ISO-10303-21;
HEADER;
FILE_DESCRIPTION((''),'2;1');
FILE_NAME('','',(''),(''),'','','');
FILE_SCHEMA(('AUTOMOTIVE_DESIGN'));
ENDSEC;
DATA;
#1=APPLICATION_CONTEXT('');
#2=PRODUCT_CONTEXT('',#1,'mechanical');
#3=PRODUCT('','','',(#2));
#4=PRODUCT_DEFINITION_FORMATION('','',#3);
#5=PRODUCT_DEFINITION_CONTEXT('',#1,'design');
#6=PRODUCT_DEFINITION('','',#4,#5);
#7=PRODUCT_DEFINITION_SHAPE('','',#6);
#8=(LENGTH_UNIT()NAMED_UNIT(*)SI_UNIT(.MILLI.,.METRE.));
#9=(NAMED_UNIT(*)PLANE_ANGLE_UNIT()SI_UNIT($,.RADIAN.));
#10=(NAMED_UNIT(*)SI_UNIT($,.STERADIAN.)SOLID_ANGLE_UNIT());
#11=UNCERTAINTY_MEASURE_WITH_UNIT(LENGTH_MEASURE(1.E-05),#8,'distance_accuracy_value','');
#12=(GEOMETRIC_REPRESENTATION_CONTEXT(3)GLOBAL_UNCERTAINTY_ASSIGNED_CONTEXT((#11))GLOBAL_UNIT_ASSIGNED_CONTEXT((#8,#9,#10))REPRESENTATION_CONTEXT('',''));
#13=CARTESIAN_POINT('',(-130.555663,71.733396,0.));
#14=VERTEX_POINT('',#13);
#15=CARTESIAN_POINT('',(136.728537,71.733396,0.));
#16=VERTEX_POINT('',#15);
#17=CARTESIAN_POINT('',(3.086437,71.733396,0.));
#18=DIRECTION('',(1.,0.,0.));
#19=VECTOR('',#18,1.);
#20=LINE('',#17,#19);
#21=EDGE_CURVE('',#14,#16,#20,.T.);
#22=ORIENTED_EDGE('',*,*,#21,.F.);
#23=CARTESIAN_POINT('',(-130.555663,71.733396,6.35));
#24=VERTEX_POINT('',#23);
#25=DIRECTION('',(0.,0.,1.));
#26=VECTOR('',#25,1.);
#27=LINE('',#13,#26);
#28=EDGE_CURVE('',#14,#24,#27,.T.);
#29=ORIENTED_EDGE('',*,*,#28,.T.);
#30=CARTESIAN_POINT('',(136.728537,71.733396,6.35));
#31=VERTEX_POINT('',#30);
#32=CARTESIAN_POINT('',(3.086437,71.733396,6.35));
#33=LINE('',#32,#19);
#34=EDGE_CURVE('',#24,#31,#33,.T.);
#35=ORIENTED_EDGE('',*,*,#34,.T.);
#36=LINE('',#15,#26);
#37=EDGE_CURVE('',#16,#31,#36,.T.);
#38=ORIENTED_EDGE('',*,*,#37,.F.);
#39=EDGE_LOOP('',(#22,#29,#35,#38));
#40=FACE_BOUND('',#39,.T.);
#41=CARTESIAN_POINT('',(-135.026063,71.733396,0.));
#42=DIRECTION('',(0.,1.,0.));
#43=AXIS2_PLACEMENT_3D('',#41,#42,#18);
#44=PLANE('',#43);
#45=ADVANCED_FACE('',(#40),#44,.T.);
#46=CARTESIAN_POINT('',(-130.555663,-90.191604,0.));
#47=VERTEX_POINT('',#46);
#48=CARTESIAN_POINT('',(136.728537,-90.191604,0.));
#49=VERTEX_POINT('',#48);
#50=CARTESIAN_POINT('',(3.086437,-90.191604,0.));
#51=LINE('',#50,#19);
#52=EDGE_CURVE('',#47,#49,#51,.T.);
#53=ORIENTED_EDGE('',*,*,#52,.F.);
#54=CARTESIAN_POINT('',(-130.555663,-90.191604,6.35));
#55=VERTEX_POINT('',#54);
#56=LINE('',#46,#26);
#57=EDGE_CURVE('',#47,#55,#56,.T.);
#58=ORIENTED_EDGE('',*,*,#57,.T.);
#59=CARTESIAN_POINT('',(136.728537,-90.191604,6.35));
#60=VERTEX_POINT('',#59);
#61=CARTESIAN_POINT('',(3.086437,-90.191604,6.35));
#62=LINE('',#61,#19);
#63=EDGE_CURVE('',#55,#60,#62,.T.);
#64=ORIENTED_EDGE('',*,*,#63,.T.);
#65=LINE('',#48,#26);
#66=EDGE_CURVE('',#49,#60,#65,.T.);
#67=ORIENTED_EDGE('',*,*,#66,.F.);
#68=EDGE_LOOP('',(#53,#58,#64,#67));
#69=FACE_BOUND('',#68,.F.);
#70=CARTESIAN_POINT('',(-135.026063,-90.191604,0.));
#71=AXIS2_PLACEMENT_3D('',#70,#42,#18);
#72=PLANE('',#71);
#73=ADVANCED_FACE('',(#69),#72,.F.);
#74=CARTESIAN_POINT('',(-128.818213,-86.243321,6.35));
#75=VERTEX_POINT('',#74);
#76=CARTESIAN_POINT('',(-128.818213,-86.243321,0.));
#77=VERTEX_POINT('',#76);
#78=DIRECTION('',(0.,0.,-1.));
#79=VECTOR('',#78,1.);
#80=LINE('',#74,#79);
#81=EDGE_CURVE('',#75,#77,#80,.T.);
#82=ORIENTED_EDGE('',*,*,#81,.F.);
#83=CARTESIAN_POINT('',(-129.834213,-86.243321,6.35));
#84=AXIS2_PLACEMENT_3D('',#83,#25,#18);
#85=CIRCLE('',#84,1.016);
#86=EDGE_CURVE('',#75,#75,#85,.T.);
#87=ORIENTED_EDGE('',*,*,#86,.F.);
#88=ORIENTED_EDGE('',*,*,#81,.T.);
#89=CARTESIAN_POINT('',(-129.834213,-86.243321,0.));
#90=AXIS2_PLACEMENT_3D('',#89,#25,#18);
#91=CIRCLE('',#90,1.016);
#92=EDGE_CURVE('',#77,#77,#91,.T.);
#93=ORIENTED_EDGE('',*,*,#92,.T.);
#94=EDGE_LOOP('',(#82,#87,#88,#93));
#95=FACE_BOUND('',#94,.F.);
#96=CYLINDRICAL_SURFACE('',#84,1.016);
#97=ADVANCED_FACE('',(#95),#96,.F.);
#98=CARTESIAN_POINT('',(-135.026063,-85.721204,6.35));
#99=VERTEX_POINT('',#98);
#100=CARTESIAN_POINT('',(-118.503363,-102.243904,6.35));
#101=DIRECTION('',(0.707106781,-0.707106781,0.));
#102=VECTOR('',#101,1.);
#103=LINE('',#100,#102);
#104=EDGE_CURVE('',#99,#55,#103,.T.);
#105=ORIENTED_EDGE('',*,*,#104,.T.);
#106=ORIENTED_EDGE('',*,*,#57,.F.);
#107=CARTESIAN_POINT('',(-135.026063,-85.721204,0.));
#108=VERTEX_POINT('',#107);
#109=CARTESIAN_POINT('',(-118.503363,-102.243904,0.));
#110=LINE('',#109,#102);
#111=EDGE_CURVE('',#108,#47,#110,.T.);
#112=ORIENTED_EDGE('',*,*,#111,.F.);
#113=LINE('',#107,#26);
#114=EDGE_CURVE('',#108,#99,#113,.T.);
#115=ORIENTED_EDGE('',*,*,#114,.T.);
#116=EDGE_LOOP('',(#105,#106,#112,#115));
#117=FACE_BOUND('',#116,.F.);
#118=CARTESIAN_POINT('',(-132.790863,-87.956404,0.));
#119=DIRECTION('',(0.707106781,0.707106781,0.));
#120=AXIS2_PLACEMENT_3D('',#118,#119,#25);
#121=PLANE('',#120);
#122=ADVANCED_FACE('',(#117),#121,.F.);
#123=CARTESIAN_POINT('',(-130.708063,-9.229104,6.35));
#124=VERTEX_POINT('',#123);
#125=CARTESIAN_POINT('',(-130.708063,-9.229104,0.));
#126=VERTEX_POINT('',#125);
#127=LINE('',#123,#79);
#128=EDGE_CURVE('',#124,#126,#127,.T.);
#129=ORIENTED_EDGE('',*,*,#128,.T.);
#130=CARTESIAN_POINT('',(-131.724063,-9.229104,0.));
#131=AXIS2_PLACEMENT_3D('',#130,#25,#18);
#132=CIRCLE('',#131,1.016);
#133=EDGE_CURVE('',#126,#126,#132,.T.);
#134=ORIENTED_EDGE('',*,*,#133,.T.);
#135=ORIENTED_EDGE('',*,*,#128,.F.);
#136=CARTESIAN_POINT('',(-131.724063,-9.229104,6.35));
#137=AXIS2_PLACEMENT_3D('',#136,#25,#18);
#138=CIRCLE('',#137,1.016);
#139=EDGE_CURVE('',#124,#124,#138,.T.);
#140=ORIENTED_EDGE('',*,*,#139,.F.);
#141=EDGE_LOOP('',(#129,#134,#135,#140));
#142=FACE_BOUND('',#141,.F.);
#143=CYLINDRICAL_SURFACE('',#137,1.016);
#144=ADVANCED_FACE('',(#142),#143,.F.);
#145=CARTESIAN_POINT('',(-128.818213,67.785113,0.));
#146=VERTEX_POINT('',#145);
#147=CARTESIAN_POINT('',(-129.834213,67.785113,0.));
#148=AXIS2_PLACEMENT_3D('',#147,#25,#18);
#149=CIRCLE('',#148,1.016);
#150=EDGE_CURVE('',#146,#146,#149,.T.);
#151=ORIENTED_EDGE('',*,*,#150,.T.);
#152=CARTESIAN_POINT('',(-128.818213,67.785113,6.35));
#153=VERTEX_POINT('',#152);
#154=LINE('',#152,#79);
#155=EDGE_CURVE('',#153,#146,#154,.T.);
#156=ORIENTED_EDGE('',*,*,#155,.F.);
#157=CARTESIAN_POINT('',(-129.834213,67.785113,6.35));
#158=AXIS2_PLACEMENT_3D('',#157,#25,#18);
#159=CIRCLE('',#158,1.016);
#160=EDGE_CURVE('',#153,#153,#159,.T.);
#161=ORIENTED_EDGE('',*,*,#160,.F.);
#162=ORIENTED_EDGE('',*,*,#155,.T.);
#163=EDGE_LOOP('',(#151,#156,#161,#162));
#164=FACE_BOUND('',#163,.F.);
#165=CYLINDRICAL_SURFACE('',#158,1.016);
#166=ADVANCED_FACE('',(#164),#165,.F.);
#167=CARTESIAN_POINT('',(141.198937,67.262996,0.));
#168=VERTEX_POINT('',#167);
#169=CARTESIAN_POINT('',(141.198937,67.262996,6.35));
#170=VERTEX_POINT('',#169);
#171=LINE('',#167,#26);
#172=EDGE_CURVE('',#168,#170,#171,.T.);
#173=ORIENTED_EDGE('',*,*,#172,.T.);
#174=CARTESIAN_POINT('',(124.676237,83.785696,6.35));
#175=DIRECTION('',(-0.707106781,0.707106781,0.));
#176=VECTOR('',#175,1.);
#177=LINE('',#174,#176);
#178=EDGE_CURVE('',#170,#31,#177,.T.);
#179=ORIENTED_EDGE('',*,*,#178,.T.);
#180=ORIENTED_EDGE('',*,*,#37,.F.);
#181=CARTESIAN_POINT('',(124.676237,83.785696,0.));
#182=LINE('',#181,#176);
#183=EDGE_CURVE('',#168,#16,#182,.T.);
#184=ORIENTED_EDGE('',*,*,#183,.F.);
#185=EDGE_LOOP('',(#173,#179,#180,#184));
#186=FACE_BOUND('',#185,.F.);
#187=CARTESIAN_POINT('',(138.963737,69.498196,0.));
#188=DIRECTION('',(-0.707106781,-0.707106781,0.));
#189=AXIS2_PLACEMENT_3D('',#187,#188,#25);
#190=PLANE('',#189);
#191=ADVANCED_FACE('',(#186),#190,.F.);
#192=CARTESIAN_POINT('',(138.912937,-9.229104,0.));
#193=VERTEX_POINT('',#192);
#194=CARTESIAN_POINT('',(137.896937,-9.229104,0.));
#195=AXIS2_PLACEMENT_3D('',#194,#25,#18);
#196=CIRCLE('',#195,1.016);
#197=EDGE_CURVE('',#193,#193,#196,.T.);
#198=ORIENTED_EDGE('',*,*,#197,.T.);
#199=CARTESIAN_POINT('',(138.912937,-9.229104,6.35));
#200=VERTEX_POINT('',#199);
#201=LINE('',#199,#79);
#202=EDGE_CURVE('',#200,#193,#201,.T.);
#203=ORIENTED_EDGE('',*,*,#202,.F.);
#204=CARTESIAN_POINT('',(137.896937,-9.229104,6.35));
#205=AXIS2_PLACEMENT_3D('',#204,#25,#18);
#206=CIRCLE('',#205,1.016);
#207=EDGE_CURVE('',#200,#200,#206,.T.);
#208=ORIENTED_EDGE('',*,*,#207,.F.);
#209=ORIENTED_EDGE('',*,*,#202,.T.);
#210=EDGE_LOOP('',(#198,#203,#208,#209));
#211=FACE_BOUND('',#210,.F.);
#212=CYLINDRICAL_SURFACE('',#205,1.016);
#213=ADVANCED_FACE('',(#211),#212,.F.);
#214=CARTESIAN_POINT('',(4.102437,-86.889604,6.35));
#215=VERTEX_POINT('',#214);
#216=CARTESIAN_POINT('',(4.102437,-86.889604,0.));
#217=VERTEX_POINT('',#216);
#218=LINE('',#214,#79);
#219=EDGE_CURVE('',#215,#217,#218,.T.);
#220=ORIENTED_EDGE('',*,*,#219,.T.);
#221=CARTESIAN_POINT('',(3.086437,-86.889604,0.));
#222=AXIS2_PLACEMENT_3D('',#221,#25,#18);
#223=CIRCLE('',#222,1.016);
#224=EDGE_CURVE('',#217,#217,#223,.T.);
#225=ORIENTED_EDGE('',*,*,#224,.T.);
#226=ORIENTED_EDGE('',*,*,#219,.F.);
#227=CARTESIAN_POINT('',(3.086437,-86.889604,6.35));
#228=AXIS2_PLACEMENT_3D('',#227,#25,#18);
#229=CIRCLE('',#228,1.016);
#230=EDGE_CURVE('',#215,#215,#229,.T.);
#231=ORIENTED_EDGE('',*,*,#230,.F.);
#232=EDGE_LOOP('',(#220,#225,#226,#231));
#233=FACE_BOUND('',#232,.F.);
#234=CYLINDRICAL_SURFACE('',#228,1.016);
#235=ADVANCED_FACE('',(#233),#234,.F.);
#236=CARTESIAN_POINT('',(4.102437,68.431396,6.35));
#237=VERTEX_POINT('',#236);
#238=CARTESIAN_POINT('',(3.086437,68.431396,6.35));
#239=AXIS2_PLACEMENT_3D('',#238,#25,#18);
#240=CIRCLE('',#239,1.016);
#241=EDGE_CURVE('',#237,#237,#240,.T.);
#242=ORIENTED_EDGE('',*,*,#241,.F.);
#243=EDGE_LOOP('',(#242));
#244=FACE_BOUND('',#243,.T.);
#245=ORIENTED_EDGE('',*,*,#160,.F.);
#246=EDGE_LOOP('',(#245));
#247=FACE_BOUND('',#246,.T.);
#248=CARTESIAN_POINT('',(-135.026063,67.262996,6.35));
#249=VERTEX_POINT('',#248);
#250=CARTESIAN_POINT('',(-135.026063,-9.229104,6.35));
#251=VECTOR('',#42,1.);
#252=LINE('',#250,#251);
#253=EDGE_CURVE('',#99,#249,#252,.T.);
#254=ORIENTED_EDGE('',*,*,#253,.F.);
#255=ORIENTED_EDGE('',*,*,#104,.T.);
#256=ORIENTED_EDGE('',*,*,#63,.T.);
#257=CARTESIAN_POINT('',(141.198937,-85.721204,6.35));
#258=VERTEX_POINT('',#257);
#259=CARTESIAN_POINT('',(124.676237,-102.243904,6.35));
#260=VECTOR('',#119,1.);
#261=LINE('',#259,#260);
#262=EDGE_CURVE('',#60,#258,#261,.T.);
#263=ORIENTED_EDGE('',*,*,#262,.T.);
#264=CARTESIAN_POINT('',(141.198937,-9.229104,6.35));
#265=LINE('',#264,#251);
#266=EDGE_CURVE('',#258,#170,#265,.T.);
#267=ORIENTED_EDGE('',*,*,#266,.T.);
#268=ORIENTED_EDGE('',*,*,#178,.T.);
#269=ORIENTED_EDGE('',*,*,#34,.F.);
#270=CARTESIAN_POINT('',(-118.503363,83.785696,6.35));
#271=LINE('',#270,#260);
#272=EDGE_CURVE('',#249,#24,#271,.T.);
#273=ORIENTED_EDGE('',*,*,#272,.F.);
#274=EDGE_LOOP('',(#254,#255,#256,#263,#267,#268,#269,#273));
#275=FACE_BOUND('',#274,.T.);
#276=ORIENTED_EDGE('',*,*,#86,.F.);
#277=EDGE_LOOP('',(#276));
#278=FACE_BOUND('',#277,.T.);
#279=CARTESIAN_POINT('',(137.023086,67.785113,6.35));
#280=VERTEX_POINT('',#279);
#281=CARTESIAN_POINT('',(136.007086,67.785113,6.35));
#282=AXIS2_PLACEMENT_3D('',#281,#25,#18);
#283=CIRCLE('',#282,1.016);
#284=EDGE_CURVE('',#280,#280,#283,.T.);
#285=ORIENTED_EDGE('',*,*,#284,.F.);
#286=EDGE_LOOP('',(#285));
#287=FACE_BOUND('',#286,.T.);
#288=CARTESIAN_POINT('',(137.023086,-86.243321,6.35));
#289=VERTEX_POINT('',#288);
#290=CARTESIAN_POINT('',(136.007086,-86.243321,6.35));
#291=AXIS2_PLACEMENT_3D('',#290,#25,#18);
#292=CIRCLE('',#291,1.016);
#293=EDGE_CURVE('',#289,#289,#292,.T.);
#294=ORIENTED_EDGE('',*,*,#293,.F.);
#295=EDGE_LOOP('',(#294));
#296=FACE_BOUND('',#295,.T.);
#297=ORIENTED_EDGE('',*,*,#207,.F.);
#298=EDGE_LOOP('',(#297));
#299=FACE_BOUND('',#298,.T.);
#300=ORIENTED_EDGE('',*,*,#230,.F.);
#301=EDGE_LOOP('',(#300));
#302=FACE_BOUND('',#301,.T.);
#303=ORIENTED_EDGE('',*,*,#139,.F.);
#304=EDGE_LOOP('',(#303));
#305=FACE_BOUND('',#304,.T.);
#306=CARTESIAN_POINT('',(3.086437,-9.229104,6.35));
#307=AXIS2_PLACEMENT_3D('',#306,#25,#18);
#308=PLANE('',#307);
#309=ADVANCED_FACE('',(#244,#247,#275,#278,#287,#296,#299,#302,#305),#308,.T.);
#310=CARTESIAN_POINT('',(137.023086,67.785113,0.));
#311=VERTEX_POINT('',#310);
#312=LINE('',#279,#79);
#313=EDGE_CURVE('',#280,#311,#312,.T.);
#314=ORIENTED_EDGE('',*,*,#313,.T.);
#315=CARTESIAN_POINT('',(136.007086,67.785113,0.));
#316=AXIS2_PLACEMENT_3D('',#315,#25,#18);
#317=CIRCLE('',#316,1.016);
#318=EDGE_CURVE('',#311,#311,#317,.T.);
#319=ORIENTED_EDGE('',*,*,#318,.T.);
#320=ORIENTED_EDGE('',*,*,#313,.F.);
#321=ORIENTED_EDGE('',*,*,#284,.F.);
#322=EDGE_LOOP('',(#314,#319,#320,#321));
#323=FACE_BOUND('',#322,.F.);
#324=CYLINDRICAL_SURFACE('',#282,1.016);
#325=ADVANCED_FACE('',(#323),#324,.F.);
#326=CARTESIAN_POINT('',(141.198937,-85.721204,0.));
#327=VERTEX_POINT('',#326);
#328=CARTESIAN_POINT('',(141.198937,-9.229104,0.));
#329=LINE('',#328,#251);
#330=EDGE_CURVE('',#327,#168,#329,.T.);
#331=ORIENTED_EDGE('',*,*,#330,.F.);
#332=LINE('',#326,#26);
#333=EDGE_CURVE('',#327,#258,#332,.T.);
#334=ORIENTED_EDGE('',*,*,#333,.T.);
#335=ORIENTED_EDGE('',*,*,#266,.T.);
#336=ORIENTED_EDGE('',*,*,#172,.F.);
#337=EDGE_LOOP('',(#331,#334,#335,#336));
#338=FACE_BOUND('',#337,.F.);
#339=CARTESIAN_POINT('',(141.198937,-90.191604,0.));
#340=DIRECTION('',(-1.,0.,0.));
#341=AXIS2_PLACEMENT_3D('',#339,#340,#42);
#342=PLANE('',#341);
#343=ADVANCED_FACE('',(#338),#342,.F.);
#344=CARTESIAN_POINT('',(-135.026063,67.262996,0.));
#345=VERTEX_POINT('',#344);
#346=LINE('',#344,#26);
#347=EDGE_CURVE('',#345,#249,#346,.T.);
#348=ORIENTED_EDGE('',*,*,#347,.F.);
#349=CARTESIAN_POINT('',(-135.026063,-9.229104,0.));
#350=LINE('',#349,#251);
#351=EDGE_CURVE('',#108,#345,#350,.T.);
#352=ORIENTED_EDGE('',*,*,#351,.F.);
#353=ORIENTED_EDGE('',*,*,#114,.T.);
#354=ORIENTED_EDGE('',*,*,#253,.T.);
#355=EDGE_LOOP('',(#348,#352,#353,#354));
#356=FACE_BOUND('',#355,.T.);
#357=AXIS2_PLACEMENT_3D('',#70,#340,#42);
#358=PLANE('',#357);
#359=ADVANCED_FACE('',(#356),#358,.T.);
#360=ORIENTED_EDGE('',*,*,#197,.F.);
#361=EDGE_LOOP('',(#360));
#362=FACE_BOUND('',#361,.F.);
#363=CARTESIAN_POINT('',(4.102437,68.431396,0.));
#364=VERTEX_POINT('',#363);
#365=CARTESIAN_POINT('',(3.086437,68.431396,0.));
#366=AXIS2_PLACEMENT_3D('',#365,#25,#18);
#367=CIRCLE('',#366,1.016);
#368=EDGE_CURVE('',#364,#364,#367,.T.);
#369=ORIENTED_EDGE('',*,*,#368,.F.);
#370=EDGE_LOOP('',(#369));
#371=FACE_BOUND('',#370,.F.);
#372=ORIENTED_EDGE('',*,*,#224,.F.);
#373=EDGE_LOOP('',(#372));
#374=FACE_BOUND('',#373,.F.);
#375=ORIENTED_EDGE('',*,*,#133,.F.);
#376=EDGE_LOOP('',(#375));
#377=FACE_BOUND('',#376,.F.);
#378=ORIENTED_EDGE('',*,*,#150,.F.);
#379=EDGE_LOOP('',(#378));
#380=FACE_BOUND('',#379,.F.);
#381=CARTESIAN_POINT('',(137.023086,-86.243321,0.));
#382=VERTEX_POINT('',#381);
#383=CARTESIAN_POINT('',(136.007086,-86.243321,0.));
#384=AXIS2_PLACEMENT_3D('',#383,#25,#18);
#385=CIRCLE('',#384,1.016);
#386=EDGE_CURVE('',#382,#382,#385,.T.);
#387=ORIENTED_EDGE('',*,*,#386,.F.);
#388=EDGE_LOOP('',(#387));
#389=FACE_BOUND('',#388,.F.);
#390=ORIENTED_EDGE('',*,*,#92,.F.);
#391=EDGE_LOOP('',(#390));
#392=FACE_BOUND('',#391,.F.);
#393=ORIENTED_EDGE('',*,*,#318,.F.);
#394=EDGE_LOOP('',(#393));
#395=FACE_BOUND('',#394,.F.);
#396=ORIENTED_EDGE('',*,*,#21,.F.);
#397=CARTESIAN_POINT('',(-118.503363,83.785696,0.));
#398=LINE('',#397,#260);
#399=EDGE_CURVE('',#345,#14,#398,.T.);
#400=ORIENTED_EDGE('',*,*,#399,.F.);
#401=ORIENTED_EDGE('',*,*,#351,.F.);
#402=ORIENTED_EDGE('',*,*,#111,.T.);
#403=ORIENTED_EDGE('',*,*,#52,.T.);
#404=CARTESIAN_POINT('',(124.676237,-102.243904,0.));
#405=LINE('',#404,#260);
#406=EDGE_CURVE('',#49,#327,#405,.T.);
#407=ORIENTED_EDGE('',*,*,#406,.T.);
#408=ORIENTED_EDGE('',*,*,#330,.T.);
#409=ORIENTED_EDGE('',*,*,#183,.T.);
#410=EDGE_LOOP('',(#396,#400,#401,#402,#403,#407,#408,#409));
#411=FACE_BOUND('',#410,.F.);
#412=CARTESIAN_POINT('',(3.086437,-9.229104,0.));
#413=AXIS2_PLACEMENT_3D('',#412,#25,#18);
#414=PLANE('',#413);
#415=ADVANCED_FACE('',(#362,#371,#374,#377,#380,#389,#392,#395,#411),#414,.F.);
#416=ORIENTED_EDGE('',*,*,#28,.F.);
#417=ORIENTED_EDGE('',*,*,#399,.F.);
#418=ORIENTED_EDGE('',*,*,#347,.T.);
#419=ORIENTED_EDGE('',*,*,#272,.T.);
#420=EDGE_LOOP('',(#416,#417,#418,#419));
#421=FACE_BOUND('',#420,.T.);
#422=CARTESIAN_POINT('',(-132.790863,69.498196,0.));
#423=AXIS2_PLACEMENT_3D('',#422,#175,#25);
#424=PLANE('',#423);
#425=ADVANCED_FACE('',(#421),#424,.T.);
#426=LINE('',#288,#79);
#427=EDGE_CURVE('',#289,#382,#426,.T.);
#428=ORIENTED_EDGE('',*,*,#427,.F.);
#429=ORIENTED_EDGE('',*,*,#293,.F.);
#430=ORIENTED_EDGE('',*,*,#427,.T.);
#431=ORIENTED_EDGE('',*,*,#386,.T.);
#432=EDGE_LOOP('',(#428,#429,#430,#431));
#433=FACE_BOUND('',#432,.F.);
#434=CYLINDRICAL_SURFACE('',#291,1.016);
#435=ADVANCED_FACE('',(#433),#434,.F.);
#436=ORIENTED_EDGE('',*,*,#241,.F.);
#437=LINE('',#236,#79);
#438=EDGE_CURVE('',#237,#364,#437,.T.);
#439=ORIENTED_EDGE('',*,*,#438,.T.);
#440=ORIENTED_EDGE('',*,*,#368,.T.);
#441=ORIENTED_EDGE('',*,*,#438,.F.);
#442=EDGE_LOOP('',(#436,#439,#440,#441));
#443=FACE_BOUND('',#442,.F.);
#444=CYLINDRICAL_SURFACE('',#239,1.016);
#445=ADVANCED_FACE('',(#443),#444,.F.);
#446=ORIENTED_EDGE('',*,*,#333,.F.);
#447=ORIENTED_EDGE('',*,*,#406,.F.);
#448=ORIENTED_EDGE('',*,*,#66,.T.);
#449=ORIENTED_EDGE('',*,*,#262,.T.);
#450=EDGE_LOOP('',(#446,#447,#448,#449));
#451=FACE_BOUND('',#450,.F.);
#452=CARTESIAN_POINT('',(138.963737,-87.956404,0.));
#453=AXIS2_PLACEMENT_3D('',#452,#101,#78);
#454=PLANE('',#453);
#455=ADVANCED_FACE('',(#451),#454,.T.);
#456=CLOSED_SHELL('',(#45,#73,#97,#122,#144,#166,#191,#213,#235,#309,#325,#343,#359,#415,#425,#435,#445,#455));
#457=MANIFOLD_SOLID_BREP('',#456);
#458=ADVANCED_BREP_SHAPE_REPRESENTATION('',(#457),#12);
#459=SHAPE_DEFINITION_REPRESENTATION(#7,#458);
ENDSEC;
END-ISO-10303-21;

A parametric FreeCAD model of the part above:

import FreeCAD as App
import Part
import Sketcher
from FreeCAD import Vector
Q = App.Units.Quantity


def edges_at(feature, points):
    """Names of the edges that pass closest to the given points."""
    edges = feature.Shape.Edges
    near = lambda p: min(range(len(edges)), key=lambda i: edges[i].distToShape(Part.Vertex(*p))[0])
    return sorted({f"Edge{near(p) + 1}" for p in points})

doc = App.newDocument("Part")
body = doc.addObject("PartDesign::Body", "Body")

sketch1 = body.newObject("Sketcher::SketchObject", "Sketch")
sketch1.AttachmentSupport = (doc.getObject("XY_Plane"), [""])
sketch1.MapMode = "FlatFace"
sketch1.addGeometry([
    Part.LineSegment(Vector(-135.026063, 71.733396, 0), Vector(-135.026063, -90.191604, 0)),
    Part.LineSegment(Vector(-135.026063, -90.191604, 0), Vector(141.198937, -90.191604, 0)),
    Part.LineSegment(Vector(141.198937, -90.191604, 0), Vector(141.198937, 71.733396, 0)),
    Part.LineSegment(Vector(141.198937, 71.733396, 0), Vector(-135.026063, 71.733396, 0)),
], False)
sketch1.addConstraint([
    Sketcher.Constraint("Coincident", 0, 2, 1, 1),
    Sketcher.Constraint("Coincident", 1, 2, 2, 1),
    Sketcher.Constraint("Coincident", 2, 2, 3, 1),
    Sketcher.Constraint("Coincident", 3, 2, 0, 1),
    Sketcher.Constraint("Vertical", 0),
    Sketcher.Constraint("Horizontal", 1),
    Sketcher.Constraint("Vertical", 2),
    Sketcher.Constraint("Horizontal", 3),
    Sketcher.Constraint("DistanceX", 1, 1, 1, 2, Q("10.875 in")),
    Sketcher.Constraint("DistanceY", 0, 2, 0, 1, Q("6.375 in")),
    Sketcher.Constraint("DistanceX", 0, 2, -1, 1, 135.026063),
    Sketcher.Constraint("DistanceY", 0, 2, -1, 1, 90.191604),
])
pad1 = body.newObject("PartDesign::Pad", "Pad")
pad1.Profile = sketch1
pad1.Length = Q("0.25 in")
doc.recompute()

chamfer = body.newObject("PartDesign::Chamfer", "Chamfer")
chamfer.Base = (pad1, edges_at(pad1, [
    (-135.026, 71.733, 3.175),
    (141.199, 71.733, 3.175),
    (141.199, -90.192, 3.175),
    (-135.026, -90.192, 3.175),
]))
chamfer.Size = Q("0.176 in")

sketch2 = body.newObject("Sketcher::SketchObject", "Sketch001")
sketch2.AttachmentSupport = (doc.getObject("XY_Plane"), [""])
sketch2.MapMode = "FlatFace"
sketch2.AttachmentOffset = App.Placement(Vector(0, 0, 0.25 * 25.4), App.Rotation())
sketch2.addGeometry([
    Part.Circle(Vector(-131.724063, -9.229104, 0), Vector(0, 0, 1), 1.016),
    Part.Circle(Vector(3.086437, -86.889604, 0), Vector(0, 0, 1), 1.016),
    Part.Circle(Vector(3.086437, 68.431396, 0), Vector(0, 0, 1), 1.016),
    Part.Circle(Vector(-129.834213, 67.785113, 0), Vector(0, 0, 1), 1.016),
    Part.Circle(Vector(-129.834213, -86.243321, 0), Vector(0, 0, 1), 1.016),
    Part.Circle(Vector(136.007086, -86.243321, 0), Vector(0, 0, 1), 1.016),
    Part.Circle(Vector(137.896937, -9.229104, 0), Vector(0, 0, 1), 1.016),
    Part.Circle(Vector(136.007086, 67.785113, 0), Vector(0, 0, 1), 1.016),
], False)
sketch2.addConstraint([
    Sketcher.Constraint("Equal", 0, 1),
    Sketcher.Constraint("Equal", 1, 2),
    Sketcher.Constraint("Equal", 2, 3),
    Sketcher.Constraint("Equal", 3, 4),
    Sketcher.Constraint("Equal", 4, 5),
    Sketcher.Constraint("Equal", 5, 6),
    Sketcher.Constraint("Equal", 6, 7),
    Sketcher.Constraint("Horizontal", 4, 3, 5, 3),
    Sketcher.Constraint("Horizontal", 0, 3, 6, 3),
    Sketcher.Constraint("Horizontal", 3, 3, 7, 3),
    Sketcher.Constraint("Vertical", 1, 3, 2, 3),
    Sketcher.Constraint("Vertical", 3, 3, 4, 3),
    Sketcher.Constraint("Vertical", 5, 3, 7, 3),
    Sketcher.Constraint("Diameter", 0, Q("0.08 in")),
    Sketcher.Constraint("DistanceY", 1, 3, 2, 3, Q("6.115 in")),
    Sketcher.Constraint("DistanceX", 0, 3, 6, 3, Q("10.615 in")),
    Sketcher.Constraint("DistanceX", 0, 3, 1, 3, Q("5.3075 in")),
    Sketcher.Constraint("DistanceY", 1, 3, 0, 3, Q("3.0575 in")),
    Sketcher.Constraint("DistanceX", 4, 3, 5, 3, 265.841299),
    Sketcher.Constraint("DistanceY", 4, 3, -1, 1, 86.243321),
    Sketcher.Constraint("DistanceX", 0, 3, 3, 3, 1.88985),
    Sketcher.Constraint("DistanceX", 0, 3, -1, 1, 131.724063),
    Sketcher.Constraint("DistanceY", 0, 3, -1, 1, 9.229104),
    Sketcher.Constraint("DistanceY", -1, 1, 3, 3, 67.785113),
])
pocket1 = body.newObject("PartDesign::Pocket", "Pocket")
pocket1.Profile = sketch2
pocket1.Type = "ThroughAll"

doc.recompute()
